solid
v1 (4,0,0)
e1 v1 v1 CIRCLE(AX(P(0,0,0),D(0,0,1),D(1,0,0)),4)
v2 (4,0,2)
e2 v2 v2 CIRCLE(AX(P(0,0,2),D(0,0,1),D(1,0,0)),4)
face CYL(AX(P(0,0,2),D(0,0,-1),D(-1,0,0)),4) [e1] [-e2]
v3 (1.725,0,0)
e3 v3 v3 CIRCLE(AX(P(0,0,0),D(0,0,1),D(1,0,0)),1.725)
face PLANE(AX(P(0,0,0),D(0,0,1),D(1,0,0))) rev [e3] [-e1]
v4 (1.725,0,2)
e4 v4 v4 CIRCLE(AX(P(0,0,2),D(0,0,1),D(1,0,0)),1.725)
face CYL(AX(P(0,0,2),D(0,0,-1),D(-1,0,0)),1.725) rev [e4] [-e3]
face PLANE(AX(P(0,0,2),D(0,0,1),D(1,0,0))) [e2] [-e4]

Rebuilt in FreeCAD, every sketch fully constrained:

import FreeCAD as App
import Part
import Sketcher

V = App.Vector

doc = App.newDocument("Part")
body = doc.addObject("PartDesign::Body", "Body")

sketch1 = body.newObject("Sketcher::SketchObject", "Sketch")
sketch1.AttachmentSupport = (doc.getObject("XY_Plane"), [""])
sketch1.MapMode = "FlatFace"
sketch1.addGeometry([
    Part.Circle(V(0, 0, 0), V(0, 0, 1), 4),
    Part.Circle(V(0, 0, 0), V(0, 0, 1), 1.725),
], False)
sketch1.addConstraint([
    Sketcher.Constraint("Coincident", 0, 3, -1, 1),
    Sketcher.Constraint("Coincident", 1, 3, -1, 1),
    Sketcher.Constraint("Diameter", 0, 8.0),
    Sketcher.Constraint("Diameter", 1, 3.45),
])
pad1 = body.newObject("PartDesign::Pad", "Pad")
pad1.Profile = sketch1
pad1.Length = 2

doc.recompute()
